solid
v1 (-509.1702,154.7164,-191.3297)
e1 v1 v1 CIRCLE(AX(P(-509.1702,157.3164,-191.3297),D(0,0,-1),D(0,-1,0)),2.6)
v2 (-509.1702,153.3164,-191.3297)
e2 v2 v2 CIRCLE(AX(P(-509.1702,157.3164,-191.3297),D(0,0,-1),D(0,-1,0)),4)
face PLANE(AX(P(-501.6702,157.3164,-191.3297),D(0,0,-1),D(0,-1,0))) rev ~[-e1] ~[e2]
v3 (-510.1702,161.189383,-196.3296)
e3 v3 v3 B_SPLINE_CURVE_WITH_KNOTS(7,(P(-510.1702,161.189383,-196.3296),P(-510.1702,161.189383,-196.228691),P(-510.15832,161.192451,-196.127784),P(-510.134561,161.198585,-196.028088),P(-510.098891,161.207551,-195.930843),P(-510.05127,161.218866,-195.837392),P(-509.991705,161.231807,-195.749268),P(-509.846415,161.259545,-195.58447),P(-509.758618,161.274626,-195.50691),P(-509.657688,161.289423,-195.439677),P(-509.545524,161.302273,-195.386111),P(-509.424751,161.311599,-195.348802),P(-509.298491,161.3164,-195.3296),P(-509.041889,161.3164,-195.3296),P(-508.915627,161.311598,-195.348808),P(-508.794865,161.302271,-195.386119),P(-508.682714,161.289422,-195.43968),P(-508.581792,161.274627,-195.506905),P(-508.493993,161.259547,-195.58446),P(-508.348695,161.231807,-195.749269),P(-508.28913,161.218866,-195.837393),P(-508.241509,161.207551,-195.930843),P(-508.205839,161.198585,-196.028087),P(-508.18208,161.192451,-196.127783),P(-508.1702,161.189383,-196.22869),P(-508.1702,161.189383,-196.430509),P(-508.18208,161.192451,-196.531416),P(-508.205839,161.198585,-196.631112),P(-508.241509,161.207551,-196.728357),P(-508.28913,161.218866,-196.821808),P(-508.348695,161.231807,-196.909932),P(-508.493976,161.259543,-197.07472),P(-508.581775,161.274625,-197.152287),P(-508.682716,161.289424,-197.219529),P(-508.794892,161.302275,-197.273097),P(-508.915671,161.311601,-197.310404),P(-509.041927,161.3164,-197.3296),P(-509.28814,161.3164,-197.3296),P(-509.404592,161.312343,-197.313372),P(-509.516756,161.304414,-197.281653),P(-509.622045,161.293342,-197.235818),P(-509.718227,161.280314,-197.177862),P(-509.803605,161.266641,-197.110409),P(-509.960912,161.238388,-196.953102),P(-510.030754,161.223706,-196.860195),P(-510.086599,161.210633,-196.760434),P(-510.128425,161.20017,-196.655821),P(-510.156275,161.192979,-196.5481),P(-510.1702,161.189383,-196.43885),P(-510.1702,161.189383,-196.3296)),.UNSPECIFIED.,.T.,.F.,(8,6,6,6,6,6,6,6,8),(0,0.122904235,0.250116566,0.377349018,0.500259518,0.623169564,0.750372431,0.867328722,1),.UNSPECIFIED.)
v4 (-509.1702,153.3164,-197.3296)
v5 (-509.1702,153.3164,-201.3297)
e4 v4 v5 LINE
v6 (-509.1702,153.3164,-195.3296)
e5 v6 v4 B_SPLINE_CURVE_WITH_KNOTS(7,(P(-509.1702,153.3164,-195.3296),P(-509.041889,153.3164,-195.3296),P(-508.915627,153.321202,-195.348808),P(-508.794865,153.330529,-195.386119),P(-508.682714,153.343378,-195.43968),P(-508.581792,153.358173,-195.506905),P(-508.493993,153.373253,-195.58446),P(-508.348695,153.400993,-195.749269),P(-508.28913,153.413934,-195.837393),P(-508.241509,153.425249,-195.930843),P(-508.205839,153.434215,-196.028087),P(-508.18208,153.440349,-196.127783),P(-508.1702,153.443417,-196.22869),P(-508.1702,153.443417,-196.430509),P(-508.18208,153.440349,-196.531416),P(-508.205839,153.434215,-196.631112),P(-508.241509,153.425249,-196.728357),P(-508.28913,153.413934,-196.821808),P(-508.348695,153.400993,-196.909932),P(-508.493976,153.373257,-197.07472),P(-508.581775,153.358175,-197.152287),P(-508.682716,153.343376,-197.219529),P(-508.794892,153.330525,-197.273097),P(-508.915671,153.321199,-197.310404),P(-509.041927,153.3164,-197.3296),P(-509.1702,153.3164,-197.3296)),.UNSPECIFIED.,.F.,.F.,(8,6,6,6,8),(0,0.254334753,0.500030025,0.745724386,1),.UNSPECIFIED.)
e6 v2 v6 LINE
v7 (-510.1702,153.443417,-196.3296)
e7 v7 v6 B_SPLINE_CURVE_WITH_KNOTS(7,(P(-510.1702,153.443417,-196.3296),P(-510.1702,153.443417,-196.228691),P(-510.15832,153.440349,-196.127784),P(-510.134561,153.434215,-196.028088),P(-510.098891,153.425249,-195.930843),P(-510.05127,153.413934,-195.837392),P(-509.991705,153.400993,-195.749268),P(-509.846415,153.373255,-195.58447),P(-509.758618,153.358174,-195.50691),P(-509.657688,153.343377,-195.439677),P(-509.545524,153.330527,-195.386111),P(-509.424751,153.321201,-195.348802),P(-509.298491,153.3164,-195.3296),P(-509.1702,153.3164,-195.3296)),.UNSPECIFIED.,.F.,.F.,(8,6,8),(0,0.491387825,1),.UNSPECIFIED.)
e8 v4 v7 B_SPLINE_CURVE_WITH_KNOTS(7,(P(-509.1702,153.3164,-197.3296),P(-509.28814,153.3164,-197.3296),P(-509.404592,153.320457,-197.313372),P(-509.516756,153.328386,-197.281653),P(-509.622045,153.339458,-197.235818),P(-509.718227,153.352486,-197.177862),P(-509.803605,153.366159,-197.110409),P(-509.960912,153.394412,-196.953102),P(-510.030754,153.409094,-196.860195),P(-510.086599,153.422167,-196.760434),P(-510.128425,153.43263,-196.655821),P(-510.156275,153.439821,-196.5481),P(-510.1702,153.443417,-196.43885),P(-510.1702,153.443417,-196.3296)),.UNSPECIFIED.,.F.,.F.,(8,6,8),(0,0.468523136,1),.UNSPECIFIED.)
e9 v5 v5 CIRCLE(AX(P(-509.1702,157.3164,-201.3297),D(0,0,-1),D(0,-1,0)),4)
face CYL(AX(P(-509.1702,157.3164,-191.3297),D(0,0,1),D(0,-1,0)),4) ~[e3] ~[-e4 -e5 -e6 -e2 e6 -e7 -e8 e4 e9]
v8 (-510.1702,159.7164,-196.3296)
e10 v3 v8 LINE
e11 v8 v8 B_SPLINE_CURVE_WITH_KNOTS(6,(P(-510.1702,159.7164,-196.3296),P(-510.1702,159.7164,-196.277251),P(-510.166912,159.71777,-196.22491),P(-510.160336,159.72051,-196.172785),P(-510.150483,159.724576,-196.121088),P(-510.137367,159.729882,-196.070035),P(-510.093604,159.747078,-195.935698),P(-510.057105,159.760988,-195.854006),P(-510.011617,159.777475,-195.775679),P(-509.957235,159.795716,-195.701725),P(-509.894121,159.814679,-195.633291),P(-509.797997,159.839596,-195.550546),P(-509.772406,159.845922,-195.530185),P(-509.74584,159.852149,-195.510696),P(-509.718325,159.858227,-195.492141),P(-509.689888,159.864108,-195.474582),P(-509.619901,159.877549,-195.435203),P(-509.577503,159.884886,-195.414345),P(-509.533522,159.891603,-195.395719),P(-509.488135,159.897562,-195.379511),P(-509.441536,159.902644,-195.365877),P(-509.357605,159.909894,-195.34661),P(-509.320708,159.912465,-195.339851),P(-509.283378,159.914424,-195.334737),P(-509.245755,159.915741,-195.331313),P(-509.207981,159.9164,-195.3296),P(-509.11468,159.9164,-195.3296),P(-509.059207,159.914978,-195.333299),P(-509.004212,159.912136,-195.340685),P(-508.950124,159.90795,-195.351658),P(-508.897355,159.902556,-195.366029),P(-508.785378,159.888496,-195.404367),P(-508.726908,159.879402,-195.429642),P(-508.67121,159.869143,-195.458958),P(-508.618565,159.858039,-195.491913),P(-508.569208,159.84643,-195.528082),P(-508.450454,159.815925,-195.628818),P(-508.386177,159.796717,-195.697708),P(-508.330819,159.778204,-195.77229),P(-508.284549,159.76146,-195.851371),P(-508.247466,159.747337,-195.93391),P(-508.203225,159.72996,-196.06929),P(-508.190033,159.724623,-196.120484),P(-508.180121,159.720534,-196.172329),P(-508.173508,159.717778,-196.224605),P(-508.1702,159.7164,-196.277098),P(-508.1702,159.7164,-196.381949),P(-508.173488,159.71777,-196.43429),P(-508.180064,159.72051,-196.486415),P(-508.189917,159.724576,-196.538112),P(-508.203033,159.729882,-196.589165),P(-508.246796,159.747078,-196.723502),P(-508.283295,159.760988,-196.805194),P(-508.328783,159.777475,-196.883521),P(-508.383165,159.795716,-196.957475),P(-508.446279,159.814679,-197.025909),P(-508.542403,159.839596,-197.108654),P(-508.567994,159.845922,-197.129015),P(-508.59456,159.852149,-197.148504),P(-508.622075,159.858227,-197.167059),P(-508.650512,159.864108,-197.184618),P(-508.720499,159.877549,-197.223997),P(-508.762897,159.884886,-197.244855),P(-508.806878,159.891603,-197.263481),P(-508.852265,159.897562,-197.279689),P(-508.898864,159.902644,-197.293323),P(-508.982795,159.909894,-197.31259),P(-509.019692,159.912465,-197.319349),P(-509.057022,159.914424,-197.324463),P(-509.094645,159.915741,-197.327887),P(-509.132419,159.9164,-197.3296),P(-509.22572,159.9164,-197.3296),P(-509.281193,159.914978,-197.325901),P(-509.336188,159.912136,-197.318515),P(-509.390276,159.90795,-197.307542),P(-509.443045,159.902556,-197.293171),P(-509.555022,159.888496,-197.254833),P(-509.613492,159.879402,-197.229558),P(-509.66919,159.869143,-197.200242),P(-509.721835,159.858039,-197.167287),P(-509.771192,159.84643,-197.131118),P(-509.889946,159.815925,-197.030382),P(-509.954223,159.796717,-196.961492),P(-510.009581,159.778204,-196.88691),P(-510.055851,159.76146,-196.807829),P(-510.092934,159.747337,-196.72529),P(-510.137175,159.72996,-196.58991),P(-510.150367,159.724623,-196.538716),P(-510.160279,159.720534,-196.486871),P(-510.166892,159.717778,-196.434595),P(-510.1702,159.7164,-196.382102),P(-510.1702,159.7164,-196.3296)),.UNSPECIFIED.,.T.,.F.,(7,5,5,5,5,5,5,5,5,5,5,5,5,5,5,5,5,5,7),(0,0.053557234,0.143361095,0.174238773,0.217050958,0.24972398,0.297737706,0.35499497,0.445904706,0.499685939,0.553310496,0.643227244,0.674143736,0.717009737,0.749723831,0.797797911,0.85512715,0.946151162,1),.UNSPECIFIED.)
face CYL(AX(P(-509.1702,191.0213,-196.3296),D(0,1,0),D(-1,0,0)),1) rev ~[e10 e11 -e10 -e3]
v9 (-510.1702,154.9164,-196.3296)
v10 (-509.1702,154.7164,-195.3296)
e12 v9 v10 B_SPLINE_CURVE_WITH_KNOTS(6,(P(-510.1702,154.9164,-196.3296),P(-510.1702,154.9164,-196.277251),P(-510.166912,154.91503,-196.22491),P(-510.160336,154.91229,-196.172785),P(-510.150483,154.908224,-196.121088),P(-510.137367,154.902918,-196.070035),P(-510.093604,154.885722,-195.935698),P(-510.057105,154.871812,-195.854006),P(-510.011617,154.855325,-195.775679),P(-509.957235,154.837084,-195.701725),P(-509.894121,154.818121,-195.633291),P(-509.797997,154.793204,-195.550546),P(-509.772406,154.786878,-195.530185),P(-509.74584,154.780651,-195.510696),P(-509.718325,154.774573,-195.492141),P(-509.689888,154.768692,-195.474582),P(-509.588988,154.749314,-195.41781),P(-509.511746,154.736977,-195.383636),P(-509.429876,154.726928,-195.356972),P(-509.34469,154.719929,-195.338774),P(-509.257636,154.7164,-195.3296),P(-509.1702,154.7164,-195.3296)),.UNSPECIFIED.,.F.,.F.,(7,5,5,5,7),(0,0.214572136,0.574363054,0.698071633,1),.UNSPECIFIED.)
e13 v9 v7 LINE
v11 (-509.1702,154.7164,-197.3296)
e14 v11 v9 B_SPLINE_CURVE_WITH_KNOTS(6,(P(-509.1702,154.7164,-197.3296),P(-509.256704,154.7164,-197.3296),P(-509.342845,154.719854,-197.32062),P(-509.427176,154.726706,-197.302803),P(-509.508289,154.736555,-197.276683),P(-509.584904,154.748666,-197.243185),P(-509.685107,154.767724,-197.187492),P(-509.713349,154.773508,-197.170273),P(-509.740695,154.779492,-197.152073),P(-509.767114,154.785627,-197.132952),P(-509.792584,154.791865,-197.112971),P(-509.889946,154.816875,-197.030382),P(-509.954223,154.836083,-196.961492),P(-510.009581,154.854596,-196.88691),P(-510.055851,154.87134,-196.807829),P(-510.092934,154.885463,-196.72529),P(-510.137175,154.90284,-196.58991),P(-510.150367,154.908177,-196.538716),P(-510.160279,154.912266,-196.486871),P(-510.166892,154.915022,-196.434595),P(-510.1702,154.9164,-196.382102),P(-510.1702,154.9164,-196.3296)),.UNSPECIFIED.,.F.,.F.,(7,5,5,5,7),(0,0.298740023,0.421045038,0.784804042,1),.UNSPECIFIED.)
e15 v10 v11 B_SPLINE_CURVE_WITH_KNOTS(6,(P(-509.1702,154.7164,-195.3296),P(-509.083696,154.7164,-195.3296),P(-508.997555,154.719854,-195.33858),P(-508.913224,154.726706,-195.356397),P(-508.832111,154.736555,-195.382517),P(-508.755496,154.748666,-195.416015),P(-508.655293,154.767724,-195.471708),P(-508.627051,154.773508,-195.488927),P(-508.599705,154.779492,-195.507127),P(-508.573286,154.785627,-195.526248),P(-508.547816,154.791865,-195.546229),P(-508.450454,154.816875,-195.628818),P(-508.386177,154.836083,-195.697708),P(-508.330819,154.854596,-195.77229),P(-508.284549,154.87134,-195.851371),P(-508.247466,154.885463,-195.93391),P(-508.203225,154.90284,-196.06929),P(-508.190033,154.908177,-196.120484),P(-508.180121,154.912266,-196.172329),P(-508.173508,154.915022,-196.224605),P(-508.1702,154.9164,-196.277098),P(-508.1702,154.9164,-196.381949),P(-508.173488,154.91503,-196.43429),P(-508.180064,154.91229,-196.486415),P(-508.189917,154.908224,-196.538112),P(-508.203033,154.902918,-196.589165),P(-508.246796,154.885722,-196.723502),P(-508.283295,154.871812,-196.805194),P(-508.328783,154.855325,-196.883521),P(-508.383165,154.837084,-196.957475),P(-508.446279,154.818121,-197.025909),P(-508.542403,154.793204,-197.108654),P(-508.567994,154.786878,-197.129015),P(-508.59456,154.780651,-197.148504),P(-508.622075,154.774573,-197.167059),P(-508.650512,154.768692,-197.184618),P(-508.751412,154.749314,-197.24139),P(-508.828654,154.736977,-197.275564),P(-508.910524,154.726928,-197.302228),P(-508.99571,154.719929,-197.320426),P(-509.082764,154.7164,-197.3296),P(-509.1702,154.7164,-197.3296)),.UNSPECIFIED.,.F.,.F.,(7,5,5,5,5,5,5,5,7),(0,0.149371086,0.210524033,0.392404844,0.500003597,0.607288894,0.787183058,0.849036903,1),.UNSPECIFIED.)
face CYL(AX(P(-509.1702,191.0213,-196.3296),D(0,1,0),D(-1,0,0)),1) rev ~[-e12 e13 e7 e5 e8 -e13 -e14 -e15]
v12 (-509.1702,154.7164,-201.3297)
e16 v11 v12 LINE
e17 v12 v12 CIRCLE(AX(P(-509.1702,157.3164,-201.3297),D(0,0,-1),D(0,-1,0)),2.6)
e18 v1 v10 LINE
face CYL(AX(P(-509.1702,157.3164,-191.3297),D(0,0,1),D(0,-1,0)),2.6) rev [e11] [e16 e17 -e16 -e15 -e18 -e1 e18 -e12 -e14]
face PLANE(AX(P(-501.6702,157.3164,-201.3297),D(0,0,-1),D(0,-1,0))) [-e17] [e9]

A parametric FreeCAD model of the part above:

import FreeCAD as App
import Part
import Sketcher

doc = App.newDocument("Part")
params = doc.addObject("Spreadsheet::Sheet", "Params")
for row, (alias, value) in enumerate([
    ("sketch1_diameter", "8 mm"),
    ("sketch1_diameter2", "5.2 mm"),
    ("pad1_length", "10 mm"),
    ("sketch2_diameter", "2 mm"),
    ("pocket1_length", "61.25 mm"),
], start=1):
    params.set(f"A{row}", alias)
    params.set(f"B{row}", "=" + value)
    params.setAlias(f"B{row}", alias)

body = doc.addObject("PartDesign::Body", "Body")

# Sketch on XY plane
sketch1 = doc.addObject("Sketcher::SketchObject", "Sketch")
body.addObject(sketch1)
sketch1.AttachmentSupport = (doc.XY_Plane, [""])
sketch1.MapMode = "FlatFace"
sketch1.AttachmentOffset = App.Placement(App.Vector(0, 0, -191.3297), App.Rotation())
sketch1.addGeometry(Part.Circle(App.Vector(-509.2, 157.3, 0), App.Vector(0, 0, 1), 4), False)
sketch1.addGeometry(Part.Circle(App.Vector(-509.2, 157.3, 0), App.Vector(0, 0, 1), 2.6), False)
sketch1.addConstraint(Sketcher.Constraint("Coincident", 1, 3, 0, 3))
sketch1.addConstraint(Sketcher.Constraint("Diameter", 0, 8.0))
sketch1.addConstraint(Sketcher.Constraint("Diameter", 1, 5.2))
sketch1.addConstraint(Sketcher.Constraint("DistanceX", 0, 3, -1, 1, 509.1702))
sketch1.addConstraint(Sketcher.Constraint("DistanceY", -1, 1, 0, 3, 157.3164))
sketch1.setExpression("Constraints[1]", "Params.sketch1_diameter")
sketch1.setExpression("Constraints[2]", "Params.sketch1_diameter2")
pad1 = doc.addObject("PartDesign::Pad", "Pad")
body.addObject(pad1)
pad1.Profile = sketch1
pad1.setExpression("Length", "Params.pad1_length")
pad1.Reversed = True

# Sketch on XZ plane
sketch2 = doc.addObject("Sketcher::SketchObject", "Sketch001")
body.addObject(sketch2)
sketch2.AttachmentSupport = (doc.XZ_Plane, [""])
sketch2.MapMode = "FlatFace"
sketch2.AttachmentOffset = App.Placement(App.Vector(0, 0, -191.0213), App.Rotation())
sketch2.addGeometry(Part.Circle(App.Vector(-509.2, -196.3, 0), App.Vector(0, 0, 1), 1), False)
sketch2.addConstraint(Sketcher.Constraint("Diameter", 0, 2.0))
sketch2.addConstraint(Sketcher.Constraint("DistanceX", 0, 3, -1, 1, 509.1702))
sketch2.addConstraint(Sketcher.Constraint("DistanceY", 0, 3, -1, 1, 196.3296))
sketch2.setExpression("Constraints[0]", "Params.sketch2_diameter")
pocket1 = doc.addObject("PartDesign::Pocket", "Pocket")
body.addObject(pocket1)
pocket1.Profile = sketch2
pocket1.setExpression("Length", "Params.pocket1_length")
pocket1.Reversed = True

doc.recompute()
